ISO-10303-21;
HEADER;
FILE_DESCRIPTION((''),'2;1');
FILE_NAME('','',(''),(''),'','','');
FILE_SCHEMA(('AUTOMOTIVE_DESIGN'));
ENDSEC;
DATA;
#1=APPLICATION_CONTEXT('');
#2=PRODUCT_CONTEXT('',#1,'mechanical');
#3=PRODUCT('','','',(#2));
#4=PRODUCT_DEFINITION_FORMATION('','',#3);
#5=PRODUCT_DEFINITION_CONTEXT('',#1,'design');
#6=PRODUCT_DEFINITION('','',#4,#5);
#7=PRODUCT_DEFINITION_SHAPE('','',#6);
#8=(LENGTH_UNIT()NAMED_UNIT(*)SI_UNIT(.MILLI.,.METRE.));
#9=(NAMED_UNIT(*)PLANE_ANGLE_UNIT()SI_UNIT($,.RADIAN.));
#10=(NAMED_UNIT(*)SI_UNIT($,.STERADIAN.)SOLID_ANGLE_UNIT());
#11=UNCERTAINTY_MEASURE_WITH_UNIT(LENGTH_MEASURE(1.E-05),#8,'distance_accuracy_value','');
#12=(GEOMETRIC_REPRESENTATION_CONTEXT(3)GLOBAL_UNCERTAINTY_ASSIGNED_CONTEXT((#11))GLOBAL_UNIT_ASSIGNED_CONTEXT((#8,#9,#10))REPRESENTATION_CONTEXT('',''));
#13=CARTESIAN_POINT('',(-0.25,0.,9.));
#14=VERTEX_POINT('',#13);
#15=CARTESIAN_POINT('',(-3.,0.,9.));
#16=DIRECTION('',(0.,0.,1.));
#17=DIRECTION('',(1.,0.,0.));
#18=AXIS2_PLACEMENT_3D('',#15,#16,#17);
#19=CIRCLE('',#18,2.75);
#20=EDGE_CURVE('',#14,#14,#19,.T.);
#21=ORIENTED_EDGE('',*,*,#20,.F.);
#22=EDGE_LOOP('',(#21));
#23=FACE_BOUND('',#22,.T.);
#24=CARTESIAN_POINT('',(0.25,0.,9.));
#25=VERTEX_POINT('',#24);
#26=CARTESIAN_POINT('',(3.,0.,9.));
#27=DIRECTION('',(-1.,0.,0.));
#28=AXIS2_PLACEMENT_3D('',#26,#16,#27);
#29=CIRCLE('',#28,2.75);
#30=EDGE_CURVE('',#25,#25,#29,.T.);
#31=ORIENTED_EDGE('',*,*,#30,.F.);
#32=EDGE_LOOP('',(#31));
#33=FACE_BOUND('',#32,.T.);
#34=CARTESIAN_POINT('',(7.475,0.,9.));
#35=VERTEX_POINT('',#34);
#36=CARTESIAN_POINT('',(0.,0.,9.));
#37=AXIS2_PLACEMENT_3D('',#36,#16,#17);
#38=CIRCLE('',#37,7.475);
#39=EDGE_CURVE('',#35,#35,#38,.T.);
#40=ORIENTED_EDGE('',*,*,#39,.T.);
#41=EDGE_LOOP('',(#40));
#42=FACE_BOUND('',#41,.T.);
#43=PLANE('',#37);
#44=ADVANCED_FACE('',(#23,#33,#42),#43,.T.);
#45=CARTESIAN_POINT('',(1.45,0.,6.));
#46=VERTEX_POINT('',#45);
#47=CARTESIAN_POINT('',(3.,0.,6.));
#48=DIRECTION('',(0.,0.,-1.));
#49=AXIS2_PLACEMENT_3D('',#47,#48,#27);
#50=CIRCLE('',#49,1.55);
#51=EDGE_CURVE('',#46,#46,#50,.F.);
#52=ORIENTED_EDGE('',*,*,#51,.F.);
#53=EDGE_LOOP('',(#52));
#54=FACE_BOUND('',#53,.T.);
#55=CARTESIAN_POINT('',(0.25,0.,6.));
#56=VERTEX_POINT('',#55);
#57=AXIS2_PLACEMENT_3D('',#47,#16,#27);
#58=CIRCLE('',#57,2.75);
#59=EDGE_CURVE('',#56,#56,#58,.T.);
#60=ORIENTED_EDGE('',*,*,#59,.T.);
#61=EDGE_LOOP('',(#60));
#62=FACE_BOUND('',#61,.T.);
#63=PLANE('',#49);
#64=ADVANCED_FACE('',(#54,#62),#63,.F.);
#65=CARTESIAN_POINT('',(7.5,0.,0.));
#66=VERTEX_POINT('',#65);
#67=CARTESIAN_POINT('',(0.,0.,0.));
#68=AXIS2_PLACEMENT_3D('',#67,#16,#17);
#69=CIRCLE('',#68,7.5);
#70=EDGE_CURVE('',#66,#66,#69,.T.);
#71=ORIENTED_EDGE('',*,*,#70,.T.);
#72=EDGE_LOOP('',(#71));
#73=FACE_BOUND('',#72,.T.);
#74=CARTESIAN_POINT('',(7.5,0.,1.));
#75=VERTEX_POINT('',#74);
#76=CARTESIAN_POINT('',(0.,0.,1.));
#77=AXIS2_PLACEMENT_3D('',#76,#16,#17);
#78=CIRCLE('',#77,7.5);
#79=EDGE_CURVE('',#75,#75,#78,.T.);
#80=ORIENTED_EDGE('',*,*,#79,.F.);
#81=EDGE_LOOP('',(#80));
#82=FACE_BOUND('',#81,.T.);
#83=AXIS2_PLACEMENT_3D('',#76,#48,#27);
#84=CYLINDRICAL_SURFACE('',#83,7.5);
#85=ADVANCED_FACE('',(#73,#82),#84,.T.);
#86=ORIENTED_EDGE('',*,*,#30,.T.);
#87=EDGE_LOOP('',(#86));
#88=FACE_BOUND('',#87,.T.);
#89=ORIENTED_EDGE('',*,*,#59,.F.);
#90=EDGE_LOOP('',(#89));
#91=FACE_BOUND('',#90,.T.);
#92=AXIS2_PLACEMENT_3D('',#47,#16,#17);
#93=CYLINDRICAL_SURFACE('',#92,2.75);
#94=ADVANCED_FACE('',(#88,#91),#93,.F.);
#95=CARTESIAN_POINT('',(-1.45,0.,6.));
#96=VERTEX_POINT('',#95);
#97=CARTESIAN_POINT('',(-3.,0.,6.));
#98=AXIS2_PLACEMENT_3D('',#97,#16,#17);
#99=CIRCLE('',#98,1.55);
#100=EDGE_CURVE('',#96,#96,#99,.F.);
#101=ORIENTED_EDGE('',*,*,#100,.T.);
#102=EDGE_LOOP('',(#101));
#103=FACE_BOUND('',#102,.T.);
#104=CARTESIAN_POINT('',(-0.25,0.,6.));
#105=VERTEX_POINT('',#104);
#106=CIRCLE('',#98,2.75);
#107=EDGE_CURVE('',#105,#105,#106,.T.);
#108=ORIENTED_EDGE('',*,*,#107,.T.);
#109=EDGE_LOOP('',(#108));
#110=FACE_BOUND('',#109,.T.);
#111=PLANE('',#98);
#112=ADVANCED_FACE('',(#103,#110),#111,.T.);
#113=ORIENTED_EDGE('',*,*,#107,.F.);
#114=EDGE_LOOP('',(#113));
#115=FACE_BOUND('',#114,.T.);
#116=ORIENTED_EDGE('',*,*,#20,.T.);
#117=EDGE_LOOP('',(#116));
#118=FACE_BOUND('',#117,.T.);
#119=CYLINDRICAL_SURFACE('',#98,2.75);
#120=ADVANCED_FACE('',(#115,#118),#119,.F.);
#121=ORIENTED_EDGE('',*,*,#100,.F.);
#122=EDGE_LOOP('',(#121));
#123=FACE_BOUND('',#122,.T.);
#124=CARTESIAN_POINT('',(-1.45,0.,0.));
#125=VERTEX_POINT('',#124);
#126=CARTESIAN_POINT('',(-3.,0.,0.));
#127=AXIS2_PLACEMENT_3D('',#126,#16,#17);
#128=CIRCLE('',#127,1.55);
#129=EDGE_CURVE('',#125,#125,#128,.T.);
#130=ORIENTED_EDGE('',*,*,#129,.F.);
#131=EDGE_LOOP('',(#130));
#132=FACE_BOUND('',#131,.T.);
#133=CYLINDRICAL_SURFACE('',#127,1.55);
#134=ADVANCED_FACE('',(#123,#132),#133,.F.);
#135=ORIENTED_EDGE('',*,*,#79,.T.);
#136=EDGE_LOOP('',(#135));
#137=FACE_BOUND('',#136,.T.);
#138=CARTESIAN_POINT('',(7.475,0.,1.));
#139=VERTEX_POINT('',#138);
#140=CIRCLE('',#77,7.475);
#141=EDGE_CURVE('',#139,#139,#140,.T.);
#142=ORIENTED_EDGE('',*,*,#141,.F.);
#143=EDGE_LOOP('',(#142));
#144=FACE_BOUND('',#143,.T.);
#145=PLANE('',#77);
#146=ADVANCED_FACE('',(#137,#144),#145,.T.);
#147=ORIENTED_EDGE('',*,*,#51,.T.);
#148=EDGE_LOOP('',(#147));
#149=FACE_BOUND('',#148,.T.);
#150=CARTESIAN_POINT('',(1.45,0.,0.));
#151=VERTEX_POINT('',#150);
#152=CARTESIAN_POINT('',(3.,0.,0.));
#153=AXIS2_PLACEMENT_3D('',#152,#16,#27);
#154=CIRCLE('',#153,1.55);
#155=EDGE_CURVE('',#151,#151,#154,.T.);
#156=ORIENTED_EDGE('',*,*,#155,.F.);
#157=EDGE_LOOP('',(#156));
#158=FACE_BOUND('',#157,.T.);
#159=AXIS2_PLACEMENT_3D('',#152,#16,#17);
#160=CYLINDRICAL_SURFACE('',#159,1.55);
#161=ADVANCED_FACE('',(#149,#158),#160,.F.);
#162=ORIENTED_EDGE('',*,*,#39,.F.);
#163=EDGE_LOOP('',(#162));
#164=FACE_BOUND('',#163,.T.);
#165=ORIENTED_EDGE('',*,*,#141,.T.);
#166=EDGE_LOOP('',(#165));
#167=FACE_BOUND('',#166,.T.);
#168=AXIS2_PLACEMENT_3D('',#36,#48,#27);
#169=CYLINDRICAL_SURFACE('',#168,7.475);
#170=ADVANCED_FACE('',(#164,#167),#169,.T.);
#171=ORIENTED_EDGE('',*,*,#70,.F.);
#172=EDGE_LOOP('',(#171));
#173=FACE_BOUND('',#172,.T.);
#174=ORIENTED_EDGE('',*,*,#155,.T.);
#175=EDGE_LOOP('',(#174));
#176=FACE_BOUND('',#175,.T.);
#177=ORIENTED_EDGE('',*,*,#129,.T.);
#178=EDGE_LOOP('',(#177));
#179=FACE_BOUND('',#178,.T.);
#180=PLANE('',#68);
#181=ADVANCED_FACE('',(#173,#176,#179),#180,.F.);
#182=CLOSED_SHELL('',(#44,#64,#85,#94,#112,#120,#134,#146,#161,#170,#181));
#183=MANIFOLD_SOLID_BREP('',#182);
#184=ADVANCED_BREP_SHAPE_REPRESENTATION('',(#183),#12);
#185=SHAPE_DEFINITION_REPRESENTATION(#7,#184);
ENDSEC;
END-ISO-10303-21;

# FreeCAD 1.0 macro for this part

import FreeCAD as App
import Part
import Sketcher

V = App.Vector
Q = App.Units.Quantity

doc = App.newDocument("Part")
body = doc.addObject("PartDesign::Body", "Body")

sketch1 = doc.addObject("Sketcher::SketchObject", "Sketch")
body.addObject(sketch1)
sketch1.AttachmentSupport = (doc.XY_Plane, [""])
sketch1.MapMode = "FlatFace"
sketch1.addGeometry(Part.Circle(V(0, 0, 0), V(0, 0, 1), 8), False)
sketch1.addConstraint(Sketcher.Constraint("Coincident", 0, 3, -1, 1))
sketch1.addConstraint(Sketcher.Constraint("Diameter", 0, Q("15 mm")))
pad1 = doc.addObject("PartDesign::Pad", "Pad")
body.addObject(pad1)
pad1.Profile = sketch1
pad1.Length = 1

sketch2 = doc.addObject("Sketcher::SketchObject", "Sketch001")
body.addObject(sketch2)
sketch2.AttachmentSupport = (doc.XY_Plane, [""])
sketch2.MapMode = "FlatFace"
sketch2.AttachmentOffset = App.Placement(V(0, 0, 1), App.Rotation())
sketch2.addGeometry(Part.Circle(V(0, 0, 0), V(0, 0, 1), 7), False)
sketch2.addConstraint(Sketcher.Constraint("Coincident", 0, 3, -1, 1))
sketch2.addConstraint(Sketcher.Constraint("Diameter", 0, Q("14.95 mm")))
pad2 = doc.addObject("PartDesign::Pad", "Pad001")
body.addObject(pad2)
pad2.Profile = sketch2
pad2.Length = 8

sketch3 = doc.addObject("Sketcher::SketchObject", "Sketch002")
body.addObject(sketch3)
sketch3.AttachmentSupport = (doc.XY_Plane, [""])
sketch3.MapMode = "FlatFace"
sketch3.AttachmentOffset = App.Placement(V(0, 0, 9), App.Rotation())
sketch3.addGeometry(Part.Circle(V(-3, 0, 0), V(0, 0, 1), 1.6), False)
sketch3.addGeometry(Part.Circle(V(3, 0, 0), V(0, 0, 1), 1.6), False)
sketch3.addConstraint(Sketcher.Constraint("Equal", 0, 1))
sketch3.addConstraint(Sketcher.Constraint("Symmetric", 0, 3, 1, 3, -1, 1))
sketch3.addConstraint(Sketcher.Constraint("PointOnObject", 0, 3, -1))
sketch3.addConstraint(Sketcher.Constraint("Diameter", 0, Q("3.1 mm")))
sketch3.addConstraint(Sketcher.Constraint("DistanceX", 0, 3, -1, 1, Q("3 mm")))
pocket1 = doc.addObject("PartDesign::Pocket", "Pocket")
body.addObject(pocket1)
pocket1.Profile = sketch3
pocket1.Type = "ThroughAll"

sketch4 = doc.addObject("Sketcher::SketchObject", "Sketch003")
body.addObject(sketch4)
sketch4.AttachmentSupport = (doc.XY_Plane, [""])
sketch4.MapMode = "FlatFace"
sketch4.AttachmentOffset = App.Placement(V(0, 0, 9), App.Rotation())
sketch4.addGeometry(Part.Circle(V(-3, 0, 0), V(0, 0, 1), 2.8), False)
sketch4.addGeometry(Part.Circle(V(3, 0, 0), V(0, 0, 1), 2.8), False)
sketch4.addConstraint(Sketcher.Constraint("Equal", 0, 1))
sketch4.addConstraint(Sketcher.Constraint("Symmetric", 0, 3, 1, 3, -1, 1))
sketch4.addConstraint(Sketcher.Constraint("PointOnObject", 0, 3, -1))
sketch4.addConstraint(Sketcher.Constraint("Diameter", 0, Q("5.5 mm")))
sketch4.addConstraint(Sketcher.Constraint("DistanceX", 0, 3, -1, 1, Q("3 mm")))
pocket2 = doc.addObject("PartDesign::Pocket", "Pocket001")
body.addObject(pocket2)
pocket2.Profile = sketch4
pocket2.Length = 3

doc.recompute()
